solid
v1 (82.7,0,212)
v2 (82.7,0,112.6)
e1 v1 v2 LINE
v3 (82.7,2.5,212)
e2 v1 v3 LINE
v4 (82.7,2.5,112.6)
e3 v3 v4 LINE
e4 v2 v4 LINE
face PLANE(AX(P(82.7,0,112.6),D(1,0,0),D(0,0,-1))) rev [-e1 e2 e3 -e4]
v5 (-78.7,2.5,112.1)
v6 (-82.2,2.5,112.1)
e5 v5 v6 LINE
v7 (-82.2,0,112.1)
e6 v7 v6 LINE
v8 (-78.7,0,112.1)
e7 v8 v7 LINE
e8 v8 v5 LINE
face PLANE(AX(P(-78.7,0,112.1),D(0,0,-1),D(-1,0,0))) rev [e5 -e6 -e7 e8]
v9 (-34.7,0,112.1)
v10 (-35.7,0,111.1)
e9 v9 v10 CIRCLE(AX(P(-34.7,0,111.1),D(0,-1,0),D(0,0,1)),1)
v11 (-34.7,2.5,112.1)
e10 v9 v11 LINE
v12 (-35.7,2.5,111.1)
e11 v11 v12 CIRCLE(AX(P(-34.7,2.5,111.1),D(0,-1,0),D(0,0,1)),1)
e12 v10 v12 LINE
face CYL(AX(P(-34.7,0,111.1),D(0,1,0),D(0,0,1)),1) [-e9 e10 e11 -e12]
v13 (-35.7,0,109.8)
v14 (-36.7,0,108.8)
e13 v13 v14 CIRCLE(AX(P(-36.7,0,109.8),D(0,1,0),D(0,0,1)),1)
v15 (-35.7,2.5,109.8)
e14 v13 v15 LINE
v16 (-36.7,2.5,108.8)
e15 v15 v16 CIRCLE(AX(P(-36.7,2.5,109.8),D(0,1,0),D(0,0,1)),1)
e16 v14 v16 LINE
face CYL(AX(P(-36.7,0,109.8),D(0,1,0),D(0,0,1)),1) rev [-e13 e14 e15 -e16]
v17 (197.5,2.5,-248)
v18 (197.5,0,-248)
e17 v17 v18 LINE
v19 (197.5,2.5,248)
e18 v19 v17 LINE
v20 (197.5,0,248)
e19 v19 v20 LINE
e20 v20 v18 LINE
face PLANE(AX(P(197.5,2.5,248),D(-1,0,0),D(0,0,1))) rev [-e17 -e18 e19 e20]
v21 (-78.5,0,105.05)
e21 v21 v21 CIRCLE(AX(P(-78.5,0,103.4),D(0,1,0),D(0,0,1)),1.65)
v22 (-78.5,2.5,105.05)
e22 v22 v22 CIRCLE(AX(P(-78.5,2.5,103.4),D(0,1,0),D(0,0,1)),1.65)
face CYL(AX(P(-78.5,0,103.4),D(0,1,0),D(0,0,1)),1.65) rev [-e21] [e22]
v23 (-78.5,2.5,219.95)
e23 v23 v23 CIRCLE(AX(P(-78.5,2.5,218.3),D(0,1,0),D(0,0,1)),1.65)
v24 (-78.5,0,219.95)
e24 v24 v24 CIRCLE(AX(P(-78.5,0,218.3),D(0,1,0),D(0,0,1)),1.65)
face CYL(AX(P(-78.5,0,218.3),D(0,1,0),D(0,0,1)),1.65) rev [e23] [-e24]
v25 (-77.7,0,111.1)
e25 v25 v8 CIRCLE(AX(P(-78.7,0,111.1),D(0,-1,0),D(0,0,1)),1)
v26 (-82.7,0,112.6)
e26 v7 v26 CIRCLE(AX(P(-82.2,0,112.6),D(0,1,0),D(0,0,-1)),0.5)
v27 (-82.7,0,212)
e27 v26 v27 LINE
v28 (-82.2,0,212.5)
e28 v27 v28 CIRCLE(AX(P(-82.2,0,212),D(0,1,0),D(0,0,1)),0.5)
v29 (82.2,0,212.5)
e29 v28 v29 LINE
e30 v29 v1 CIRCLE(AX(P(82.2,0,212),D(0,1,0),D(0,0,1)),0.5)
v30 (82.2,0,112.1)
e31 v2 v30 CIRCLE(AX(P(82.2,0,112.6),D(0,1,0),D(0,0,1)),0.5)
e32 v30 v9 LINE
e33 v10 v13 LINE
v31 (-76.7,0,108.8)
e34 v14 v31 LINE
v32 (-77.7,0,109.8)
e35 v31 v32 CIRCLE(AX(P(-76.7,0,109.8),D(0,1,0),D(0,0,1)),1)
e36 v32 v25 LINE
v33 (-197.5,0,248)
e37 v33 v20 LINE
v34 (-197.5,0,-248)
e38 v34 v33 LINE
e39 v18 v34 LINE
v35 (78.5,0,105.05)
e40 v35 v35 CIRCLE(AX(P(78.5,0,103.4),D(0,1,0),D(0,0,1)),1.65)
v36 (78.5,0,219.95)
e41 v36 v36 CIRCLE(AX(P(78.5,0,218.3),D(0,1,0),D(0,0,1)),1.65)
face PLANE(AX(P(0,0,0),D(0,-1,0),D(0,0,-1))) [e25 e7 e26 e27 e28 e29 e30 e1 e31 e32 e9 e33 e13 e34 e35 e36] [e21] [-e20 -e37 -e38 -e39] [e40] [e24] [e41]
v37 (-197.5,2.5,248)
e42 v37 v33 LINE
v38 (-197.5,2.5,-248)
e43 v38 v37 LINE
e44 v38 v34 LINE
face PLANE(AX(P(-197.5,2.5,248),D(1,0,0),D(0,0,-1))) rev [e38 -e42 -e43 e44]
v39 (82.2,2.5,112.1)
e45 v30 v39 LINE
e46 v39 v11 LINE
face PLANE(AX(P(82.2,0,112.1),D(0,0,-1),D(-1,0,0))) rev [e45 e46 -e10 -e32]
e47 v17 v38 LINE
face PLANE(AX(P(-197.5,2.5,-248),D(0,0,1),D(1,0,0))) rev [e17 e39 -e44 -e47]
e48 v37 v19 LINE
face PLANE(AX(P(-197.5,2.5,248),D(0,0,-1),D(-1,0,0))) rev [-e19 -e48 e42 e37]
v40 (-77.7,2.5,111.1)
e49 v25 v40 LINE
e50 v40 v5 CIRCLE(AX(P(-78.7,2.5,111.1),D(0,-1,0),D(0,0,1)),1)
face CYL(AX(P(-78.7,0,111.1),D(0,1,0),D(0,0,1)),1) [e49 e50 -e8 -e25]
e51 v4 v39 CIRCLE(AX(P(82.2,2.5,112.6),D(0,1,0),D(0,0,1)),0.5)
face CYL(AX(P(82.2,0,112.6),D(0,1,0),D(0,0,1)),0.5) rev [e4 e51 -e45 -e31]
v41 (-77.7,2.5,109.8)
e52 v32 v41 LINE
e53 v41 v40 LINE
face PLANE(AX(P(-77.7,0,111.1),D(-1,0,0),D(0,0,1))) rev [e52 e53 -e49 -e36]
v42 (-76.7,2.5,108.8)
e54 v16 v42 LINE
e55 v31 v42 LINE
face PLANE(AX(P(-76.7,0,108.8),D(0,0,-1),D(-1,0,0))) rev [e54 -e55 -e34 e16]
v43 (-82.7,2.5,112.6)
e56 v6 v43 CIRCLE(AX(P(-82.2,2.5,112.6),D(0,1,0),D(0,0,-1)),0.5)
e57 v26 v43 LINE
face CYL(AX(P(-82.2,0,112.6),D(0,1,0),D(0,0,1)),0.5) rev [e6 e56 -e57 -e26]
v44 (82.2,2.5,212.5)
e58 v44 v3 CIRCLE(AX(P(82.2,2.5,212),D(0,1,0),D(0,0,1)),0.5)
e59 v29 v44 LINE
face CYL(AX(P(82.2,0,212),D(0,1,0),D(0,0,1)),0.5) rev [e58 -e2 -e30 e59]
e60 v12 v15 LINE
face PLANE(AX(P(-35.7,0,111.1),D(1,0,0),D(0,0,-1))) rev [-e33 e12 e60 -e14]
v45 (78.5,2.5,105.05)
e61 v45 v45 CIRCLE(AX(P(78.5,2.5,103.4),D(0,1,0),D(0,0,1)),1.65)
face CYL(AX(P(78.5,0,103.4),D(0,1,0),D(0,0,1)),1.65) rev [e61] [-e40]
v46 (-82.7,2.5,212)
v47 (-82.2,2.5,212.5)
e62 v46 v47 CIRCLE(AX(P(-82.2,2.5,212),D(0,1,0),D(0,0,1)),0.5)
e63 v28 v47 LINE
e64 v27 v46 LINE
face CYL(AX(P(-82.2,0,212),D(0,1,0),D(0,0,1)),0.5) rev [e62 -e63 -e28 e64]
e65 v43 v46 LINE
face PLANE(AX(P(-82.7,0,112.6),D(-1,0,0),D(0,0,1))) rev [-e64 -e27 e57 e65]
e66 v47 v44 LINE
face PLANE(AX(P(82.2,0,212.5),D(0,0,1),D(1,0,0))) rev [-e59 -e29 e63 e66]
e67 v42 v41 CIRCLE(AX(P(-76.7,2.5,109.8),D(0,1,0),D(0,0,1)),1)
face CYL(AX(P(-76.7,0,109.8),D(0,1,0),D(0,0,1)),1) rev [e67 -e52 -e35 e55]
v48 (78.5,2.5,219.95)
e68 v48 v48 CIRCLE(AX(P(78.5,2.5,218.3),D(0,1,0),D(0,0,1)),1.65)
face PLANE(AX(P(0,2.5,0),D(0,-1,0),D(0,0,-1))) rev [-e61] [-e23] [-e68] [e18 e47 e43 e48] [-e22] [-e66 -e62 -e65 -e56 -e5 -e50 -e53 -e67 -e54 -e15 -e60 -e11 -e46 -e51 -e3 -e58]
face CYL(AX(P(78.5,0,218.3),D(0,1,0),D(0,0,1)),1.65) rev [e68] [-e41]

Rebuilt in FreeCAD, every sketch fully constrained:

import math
import FreeCAD as App
import Part
import Sketcher

doc = App.newDocument("Part")
body = doc.addObject("PartDesign::Body", "Body")

# Sketch on XZ plane
sketch1 = body.newObject("Sketcher::SketchObject", "Sketch")
sketch1.AttachmentSupport = (doc.getObject("XZ_Plane"), [""])
sketch1.MapMode = "FlatFace"
sketch1.addGeometry([
    Part.LineSegment(App.Vector(-198, -248, 0), App.Vector(-198, 248, 0)),
    Part.LineSegment(App.Vector(-198, 248, 0), App.Vector(198, 248, 0)),
    Part.LineSegment(App.Vector(198, 248, 0), App.Vector(198, -248, 0)),
    Part.LineSegment(App.Vector(198, -248, 0), App.Vector(-198, -248, 0)),
], False)
sketch1.addConstraint([
    Sketcher.Constraint("Coincident", 0, 2, 1, 1),
    Sketcher.Constraint("Coincident", 1, 2, 2, 1),
    Sketcher.Constraint("Coincident", 2, 2, 3, 1),
    Sketcher.Constraint("Coincident", 3, 2, 0, 1),
    Sketcher.Constraint("Vertical", 0),
    Sketcher.Constraint("Horizontal", 1),
    Sketcher.Constraint("Vertical", 2),
    Sketcher.Constraint("Horizontal", 3),
    Sketcher.Constraint("Symmetric", 0, 2, 2, 2, -1, 1),
    Sketcher.Constraint("DistanceX", 1, 1, 1, 2, 395.0),
    Sketcher.Constraint("DistanceY", 0, 1, 0, 2, 496.0),
])
pad1 = body.newObject("PartDesign::Pad", "Pad")
pad1.Profile = sketch1
pad1.Length = 2.5
pad1.Reversed = True

# Sketch on XZ plane
sketch2 = body.newObject("Sketcher::SketchObject", "Sketch001")
sketch2.AttachmentSupport = (doc.getObject("XZ_Plane"), [""])
sketch2.MapMode = "FlatFace"
sketch2.AttachmentOffset = App.Placement(App.Vector(0, 0, -2.5), App.Rotation())
sketch2.addGeometry([
    Part.LineSegment(App.Vector(-78.7, 112.1, 0), App.Vector(-82.2, 112.1, 0)),  # 0
    Part.ArcOfCircle(Part.Circle(App.Vector(-82.2, 112.6, 0), App.Vector(0, 0, 1), 0.5), math.radians(180), math.radians(270)),  # 1
    Part.LineSegment(App.Vector(-82.7, 112.6, 0), App.Vector(-82.7, 212, 0)),  # 2
    Part.ArcOfCircle(Part.Circle(App.Vector(-82.2, 212, 0), App.Vector(0, 0, 1), 0.5), math.radians(90), math.radians(180)),  # 3
    Part.LineSegment(App.Vector(-82.2, 212.5, 0), App.Vector(82.2, 212.5, 0)),  # 4
    Part.ArcOfCircle(Part.Circle(App.Vector(82.2, 212, 0), App.Vector(0, 0, 1), 0.5), math.radians(0), math.radians(90)),  # 5
    Part.LineSegment(App.Vector(82.7, 212, 0), App.Vector(82.7, 112.6, 0)),  # 6
    Part.ArcOfCircle(Part.Circle(App.Vector(82.2, 112.6, 0), App.Vector(0, 0, 1), 0.5), math.radians(-90), math.radians(0)),  # 7
    Part.LineSegment(App.Vector(82.2, 112.1, 0), App.Vector(-34.7, 112.1, 0)),  # 8
    Part.ArcOfCircle(Part.Circle(App.Vector(-34.7, 111.1, 0), App.Vector(0, 0, 1), 1), math.radians(90), math.radians(180)),  # 9
    Part.LineSegment(App.Vector(-35.7, 111.1, 0), App.Vector(-35.7, 109.8, 0)),  # 10
    Part.ArcOfCircle(Part.Circle(App.Vector(-36.7, 109.8, 0), App.Vector(0, 0, 1), 1), math.radians(-90), math.radians(0)),  # 11
    Part.LineSegment(App.Vector(-36.7, 108.8, 0), App.Vector(-76.7, 108.8, 0)),  # 12
    Part.ArcOfCircle(Part.Circle(App.Vector(-76.7, 109.8, 0), App.Vector(0, 0, 1), 1), math.radians(-180), math.radians(-90)),  # 13
    Part.LineSegment(App.Vector(-77.7, 109.8, 0), App.Vector(-77.7, 111.1, 0)),  # 14
    Part.ArcOfCircle(Part.Circle(App.Vector(-78.7, 111.1, 0), App.Vector(0, 0, 1), 1), math.radians(0), math.radians(90)),  # 15
], False)
sketch2.addConstraint([
    Sketcher.Constraint("Tangent", 0, 2, 1, 2),
    Sketcher.Constraint("Tangent", 1, 1, 2, 1),
    Sketcher.Constraint("Tangent", 2, 2, 3, 2),
    Sketcher.Constraint("Tangent", 3, 1, 4, 1),
    Sketcher.Constraint("Tangent", 4, 2, 5, 2),
    Sketcher.Constraint("Tangent", 5, 1, 6, 1),
    Sketcher.Constraint("Tangent", 6, 2, 7, 2),
    Sketcher.Constraint("Tangent", 7, 1, 8, 1),
    Sketcher.Constraint("Tangent", 8, 2, 9, 1),
    Sketcher.Constraint("Tangent", 9, 2, 10, 1),
    Sketcher.Constraint("Tangent", 10, 2, 11, 2),
    Sketcher.Constraint("Tangent", 11, 1, 12, 1),
    Sketcher.Constraint("Tangent", 12, 2, 13, 2),
    Sketcher.Constraint("Tangent", 13, 1, 14, 1),
    Sketcher.Constraint("Tangent", 14, 2, 15, 1),
    Sketcher.Constraint("Tangent", 15, 2, 0, 1),
    Sketcher.Constraint("Horizontal", 0),
    Sketcher.Constraint("Vertical", 2),
    Sketcher.Constraint("Horizontal", 4),
    Sketcher.Constraint("Vertical", 6),
    Sketcher.Constraint("Horizontal", 8),
    Sketcher.Constraint("Vertical", 10),
    Sketcher.Constraint("Horizontal", 12),
    Sketcher.Constraint("Vertical", 14),
    Sketcher.Constraint("Equal", 1, 3),
    Sketcher.Constraint("Equal", 3, 5),
    Sketcher.Constraint("Equal", 5, 7),
    Sketcher.Constraint("Equal", 9, 11),
    Sketcher.Constraint("Equal", 11, 13),
    Sketcher.Constraint("Equal", 13, 15),
    Sketcher.Constraint("Symmetric", 1, 3, 7, 3, -2),
    Sketcher.Constraint("Radius", 9, 1.0),
    Sketcher.Constraint("Radius", 1, 0.5),
    Sketcher.Constraint("DistanceX", 12, 2, 12, 1, 40.0),
    Sketcher.Constraint("DistanceX", 0, 2, 0, 1, 3.5),
    Sketcher.Constraint("DistanceX", 4, 1, 4, 2, 164.4),
    Sketcher.Constraint("DistanceY", 2, 1, 2, 2, 99.4),
    Sketcher.Constraint("DistanceY", 10, 2, 10, 1, 1.3),
    Sketcher.Constraint("DistanceY", -1, 1, 3, 3, 212.0),
])
pocket1 = body.newObject("PartDesign::Pocket", "Pocket")
pocket1.Profile = sketch2
pocket1.Length = 2.5
pocket1.Reversed = True

# Sketch on XZ plane
sketch3 = body.newObject("Sketcher::SketchObject", "Sketch002")
sketch3.AttachmentSupport = (doc.getObject("XZ_Plane"), [""])
sketch3.MapMode = "FlatFace"
sketch3.AttachmentOffset = App.Placement(App.Vector(0, 0, -2.5), App.Rotation())
sketch3.addGeometry([
    Part.Circle(App.Vector(78.5, 103.4, 0), App.Vector(0, 0, 1), 1.6),
    Part.Circle(App.Vector(-78.5, 103.4, 0), App.Vector(0, 0, 1), 1.6),
    Part.Circle(App.Vector(-78.5, 218.3, 0), App.Vector(0, 0, 1), 1.6),
    Part.Circle(App.Vector(78.5, 218.3, 0), App.Vector(0, 0, 1), 1.6),
], False)
sketch3.addConstraint([
    Sketcher.Constraint("Equal", 0, 1),
    Sketcher.Constraint("Equal", 1, 2),
    Sketcher.Constraint("Equal", 2, 3),
    Sketcher.Constraint("Symmetric", 0, 3, 1, 3, -2),
    Sketcher.Constraint("Symmetric", 2, 3, 3, 3, -2),
    Sketcher.Constraint("Vertical", 1, 3, 2, 3),
    Sketcher.Constraint("Diameter", 0, 3.3),
    Sketcher.Constraint("DistanceX", 1, 3, 0, 3, 157.0),
    Sketcher.Constraint("DistanceY", -1, 1, 0, 3, 103.4),
    Sketcher.Constraint("DistanceY", -1, 1, 2, 3, 218.3),
])
pocket2 = body.newObject("PartDesign::Pocket", "Pocket001")
pocket2.Profile = sketch3
pocket2.Length = 2.5
pocket2.Reversed = True

doc.recompute()
